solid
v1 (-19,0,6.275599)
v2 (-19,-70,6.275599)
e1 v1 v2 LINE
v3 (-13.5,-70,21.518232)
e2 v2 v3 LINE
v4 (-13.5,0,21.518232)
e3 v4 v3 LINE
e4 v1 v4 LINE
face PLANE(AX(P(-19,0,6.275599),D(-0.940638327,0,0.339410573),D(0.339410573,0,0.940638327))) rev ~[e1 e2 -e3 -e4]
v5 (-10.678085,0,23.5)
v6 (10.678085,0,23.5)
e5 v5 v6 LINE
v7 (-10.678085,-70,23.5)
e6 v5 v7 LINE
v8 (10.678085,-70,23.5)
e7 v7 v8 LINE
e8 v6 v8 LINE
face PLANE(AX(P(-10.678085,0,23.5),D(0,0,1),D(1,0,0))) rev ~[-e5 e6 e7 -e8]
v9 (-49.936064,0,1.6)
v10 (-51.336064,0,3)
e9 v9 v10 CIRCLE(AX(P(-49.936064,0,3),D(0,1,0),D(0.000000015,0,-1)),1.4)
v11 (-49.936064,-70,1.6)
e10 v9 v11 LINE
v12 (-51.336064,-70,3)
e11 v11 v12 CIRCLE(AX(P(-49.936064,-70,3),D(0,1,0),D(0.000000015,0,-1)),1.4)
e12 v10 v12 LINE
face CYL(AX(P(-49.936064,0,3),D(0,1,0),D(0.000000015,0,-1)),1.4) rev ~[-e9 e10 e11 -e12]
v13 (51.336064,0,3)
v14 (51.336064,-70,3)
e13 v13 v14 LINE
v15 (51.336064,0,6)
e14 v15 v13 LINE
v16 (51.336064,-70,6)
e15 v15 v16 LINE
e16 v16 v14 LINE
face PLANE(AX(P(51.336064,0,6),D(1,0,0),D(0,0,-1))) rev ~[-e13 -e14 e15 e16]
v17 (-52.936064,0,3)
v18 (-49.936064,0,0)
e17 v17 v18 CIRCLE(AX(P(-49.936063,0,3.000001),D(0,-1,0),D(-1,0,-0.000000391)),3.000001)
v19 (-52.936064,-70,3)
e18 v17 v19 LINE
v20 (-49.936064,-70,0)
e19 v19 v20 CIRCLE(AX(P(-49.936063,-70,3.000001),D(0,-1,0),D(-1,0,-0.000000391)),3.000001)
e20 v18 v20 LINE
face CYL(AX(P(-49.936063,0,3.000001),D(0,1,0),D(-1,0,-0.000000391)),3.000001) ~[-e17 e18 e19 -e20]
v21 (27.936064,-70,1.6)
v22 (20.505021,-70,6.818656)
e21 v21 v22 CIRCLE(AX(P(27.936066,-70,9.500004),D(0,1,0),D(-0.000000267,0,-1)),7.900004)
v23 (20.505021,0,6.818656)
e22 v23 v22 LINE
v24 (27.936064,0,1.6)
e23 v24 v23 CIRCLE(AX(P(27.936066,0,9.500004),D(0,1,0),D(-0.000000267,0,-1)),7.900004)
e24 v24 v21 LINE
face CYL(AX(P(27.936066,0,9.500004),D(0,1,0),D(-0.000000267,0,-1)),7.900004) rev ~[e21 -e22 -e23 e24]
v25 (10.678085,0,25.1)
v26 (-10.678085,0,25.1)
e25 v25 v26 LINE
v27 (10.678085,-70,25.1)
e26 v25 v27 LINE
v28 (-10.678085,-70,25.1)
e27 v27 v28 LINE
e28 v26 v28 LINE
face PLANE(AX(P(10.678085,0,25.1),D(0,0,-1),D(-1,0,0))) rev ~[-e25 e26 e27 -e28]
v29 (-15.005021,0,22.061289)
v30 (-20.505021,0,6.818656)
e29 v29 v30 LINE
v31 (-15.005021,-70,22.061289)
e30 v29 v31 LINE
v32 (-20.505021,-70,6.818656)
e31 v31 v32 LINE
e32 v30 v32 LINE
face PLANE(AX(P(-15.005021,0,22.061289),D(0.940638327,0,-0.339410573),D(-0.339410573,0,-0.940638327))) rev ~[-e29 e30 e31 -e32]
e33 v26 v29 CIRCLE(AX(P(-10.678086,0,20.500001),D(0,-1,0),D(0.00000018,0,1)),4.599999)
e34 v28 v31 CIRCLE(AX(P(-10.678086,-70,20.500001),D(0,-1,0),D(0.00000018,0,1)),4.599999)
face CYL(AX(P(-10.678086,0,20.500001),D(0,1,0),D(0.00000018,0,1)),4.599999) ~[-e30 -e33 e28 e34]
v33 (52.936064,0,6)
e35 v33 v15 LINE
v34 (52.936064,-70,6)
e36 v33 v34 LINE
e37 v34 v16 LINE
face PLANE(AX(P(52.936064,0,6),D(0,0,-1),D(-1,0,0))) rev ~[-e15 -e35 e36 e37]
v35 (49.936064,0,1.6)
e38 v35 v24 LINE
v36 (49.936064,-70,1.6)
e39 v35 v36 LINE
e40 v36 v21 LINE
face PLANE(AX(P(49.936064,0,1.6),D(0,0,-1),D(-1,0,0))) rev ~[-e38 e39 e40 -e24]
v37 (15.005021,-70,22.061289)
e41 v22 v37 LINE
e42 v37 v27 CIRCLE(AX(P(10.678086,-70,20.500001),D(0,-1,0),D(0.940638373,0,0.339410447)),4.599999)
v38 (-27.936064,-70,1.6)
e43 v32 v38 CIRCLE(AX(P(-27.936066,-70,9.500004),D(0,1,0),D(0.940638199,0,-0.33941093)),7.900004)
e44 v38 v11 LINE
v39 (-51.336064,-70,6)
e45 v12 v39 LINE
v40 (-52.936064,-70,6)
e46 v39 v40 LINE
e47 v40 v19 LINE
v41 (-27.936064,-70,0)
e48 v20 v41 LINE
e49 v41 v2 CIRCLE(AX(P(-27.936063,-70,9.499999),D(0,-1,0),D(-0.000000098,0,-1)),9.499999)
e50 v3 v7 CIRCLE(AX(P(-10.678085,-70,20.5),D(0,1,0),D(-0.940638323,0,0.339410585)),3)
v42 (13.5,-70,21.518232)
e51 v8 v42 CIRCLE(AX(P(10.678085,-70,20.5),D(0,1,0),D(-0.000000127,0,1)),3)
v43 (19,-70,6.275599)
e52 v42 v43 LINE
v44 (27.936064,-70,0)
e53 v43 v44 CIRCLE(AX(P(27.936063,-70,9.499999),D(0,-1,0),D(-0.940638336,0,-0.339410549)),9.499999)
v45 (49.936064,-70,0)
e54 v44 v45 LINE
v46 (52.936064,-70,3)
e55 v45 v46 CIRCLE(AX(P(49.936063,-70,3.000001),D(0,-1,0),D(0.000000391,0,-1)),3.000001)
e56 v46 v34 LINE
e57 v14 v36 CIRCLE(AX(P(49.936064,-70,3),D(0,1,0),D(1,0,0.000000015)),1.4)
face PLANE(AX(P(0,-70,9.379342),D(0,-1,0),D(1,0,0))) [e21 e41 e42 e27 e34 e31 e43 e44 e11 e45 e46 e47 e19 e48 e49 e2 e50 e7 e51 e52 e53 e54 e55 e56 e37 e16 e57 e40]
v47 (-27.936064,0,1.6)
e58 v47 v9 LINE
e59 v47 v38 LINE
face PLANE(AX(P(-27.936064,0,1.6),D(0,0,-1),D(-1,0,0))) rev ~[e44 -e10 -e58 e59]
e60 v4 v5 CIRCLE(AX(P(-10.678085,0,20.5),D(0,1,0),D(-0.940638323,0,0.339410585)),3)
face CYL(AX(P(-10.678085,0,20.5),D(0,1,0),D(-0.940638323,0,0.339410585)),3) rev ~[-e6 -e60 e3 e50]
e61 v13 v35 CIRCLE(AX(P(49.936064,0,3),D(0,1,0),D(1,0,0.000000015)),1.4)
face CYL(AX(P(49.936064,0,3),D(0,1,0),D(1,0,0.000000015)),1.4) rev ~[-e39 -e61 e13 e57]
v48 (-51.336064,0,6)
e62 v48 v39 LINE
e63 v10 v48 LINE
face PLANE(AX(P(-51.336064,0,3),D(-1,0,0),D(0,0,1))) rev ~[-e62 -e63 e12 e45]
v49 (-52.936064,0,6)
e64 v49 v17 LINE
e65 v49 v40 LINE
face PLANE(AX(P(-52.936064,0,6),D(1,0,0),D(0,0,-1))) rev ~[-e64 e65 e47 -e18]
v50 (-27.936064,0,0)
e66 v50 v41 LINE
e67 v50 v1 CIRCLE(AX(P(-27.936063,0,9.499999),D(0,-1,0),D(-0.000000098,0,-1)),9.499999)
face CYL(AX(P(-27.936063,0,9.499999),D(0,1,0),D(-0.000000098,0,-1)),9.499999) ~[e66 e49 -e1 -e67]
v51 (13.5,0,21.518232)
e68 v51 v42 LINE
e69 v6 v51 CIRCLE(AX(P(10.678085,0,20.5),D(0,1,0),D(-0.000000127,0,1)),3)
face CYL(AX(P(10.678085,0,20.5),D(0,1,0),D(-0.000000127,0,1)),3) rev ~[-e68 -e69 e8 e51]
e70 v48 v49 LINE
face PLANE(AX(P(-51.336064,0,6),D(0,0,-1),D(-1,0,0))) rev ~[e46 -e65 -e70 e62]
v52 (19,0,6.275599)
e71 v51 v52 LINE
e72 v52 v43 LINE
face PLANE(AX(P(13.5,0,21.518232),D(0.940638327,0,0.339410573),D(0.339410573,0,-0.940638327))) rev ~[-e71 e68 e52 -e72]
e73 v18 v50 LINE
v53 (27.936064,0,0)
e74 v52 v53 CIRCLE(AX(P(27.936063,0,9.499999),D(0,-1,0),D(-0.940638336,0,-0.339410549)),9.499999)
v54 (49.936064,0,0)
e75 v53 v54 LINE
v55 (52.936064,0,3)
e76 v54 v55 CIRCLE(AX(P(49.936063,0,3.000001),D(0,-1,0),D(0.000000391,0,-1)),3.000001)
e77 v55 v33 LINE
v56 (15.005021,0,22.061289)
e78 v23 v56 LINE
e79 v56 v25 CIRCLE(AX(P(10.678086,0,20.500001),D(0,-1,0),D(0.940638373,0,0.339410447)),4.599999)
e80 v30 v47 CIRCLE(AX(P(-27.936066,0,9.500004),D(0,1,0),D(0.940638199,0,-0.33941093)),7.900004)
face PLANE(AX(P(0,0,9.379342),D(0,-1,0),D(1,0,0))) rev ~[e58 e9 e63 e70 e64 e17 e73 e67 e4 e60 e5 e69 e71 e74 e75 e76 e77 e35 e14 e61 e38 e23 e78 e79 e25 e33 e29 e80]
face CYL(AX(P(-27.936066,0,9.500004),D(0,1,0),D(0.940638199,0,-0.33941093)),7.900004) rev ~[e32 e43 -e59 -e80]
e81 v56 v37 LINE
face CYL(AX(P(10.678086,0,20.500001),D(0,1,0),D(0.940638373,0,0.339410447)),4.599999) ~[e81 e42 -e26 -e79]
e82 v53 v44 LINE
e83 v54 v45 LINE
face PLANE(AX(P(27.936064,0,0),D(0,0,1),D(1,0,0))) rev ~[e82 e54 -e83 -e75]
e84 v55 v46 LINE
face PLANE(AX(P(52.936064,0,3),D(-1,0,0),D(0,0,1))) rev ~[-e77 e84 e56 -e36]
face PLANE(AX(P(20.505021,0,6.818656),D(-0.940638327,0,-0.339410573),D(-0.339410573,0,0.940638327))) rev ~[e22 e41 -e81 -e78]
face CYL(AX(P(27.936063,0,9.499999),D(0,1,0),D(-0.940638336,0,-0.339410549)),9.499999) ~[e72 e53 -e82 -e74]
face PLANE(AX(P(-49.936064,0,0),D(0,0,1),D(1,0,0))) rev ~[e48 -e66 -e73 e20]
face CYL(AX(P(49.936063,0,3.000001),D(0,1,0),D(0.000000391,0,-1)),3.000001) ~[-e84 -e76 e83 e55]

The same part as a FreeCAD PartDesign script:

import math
import FreeCAD as App
import Part
import Sketcher
from FreeCAD import Vector

doc = App.newDocument("Part")
body = doc.addObject("PartDesign::Body", "Body")

# Sketch on XZ plane
sketch1 = doc.addObject("Sketcher::SketchObject", "Sketch")
body.addObject(sketch1)
sketch1.AttachmentSupport = (doc.XZ_Plane, [""])
sketch1.MapMode = "FlatFace"
sketch1.addGeometry(Part.LineSegment(Vector(-10.678085, 23.5, 0), Vector(10.678085, 23.5, 0)), False)
sketch1.addGeometry(Part.ArcOfCircle(Part.Circle(Vector(10.678085, 20.5, 0), Vector(0, 0, 1), 3), math.radians(19.840968), math.radians(90.000007)), False)
sketch1.addGeometry(Part.LineSegment(Vector(13.5, 21.518232, 0), Vector(19, 6.275599, 0)), False)
sketch1.addGeometry(Part.ArcOfCircle(Part.Circle(Vector(27.936063, 9.499999, 0), Vector(0, 0, 1), 9.499999), math.radians(-160.159034), math.radians(-89.999994)), False)
sketch1.addGeometry(Part.LineSegment(Vector(27.936064, 0, 0), Vector(49.936064, 0, 0)), False)
sketch1.addGeometry(Part.ArcOfCircle(Part.Circle(Vector(49.936063, 3.000001, 0), Vector(0, 0, 1), 3.000001), math.radians(-89.999978), math.radians(-0.000022)), False)
sketch1.addGeometry(Part.LineSegment(Vector(52.936064, 3, 0), Vector(52.936064, 6, 0)), False)
sketch1.addGeometry(Part.LineSegment(Vector(52.936064, 6, 0), Vector(51.336064, 6, 0)), False)
sketch1.addGeometry(Part.LineSegment(Vector(51.336064, 6, 0), Vector(51.336064, 3, 0)), False)
sketch1.addGeometry(Part.ArcOfCircle(Part.Circle(Vector(49.936064, 3, 0), Vector(0, 0, 1), 1.4), math.radians(-90.000001), math.radians(0.000001)), False)
sketch1.addGeometry(Part.LineSegment(Vector(49.936064, 1.6, 0), Vector(27.936064, 1.6, 0)), False)
sketch1.addGeometry(Part.ArcOfCircle(Part.Circle(Vector(27.936066, 9.500004, 0), Vector(0, 0, 1), 7.900004), math.radians(-160.159011), math.radians(-90.000015)), False)
sketch1.addGeometry(Part.LineSegment(Vector(20.505021, 6.818656, 0), Vector(15.005021, 22.061289, 0)), False)
sketch1.addGeometry(Part.ArcOfCircle(Part.Circle(Vector(10.678086, 20.500001, 0), Vector(0, 0, 1), 4.599999), math.radians(19.840959), math.radians(90.00001)), False)
sketch1.addGeometry(Part.LineSegment(Vector(10.678085, 25.1, 0), Vector(-10.678085, 25.1, 0)), False)
sketch1.addGeometry(Part.ArcOfCircle(Part.Circle(Vector(-10.678086, 20.500001, 0), Vector(0, 0, 1), 4.599999), math.radians(89.99999), math.radians(160.159041)), False)
sketch1.addGeometry(Part.LineSegment(Vector(-15.005021, 22.061289, 0), Vector(-20.505021, 6.818656, 0)), False)
sketch1.addGeometry(Part.ArcOfCircle(Part.Circle(Vector(-27.936066, 9.500004, 0), Vector(0, 0, 1), 7.900004), math.radians(-89.999985), math.radians(-19.840989)), False)
sketch1.addGeometry(Part.LineSegment(Vector(-27.936064, 1.6, 0), Vector(-49.936064, 1.6, 0)), False)
sketch1.addGeometry(Part.ArcOfCircle(Part.Circle(Vector(-49.936064, 3, 0), Vector(0, 0, 1), 1.4), math.radians(179.999999), math.radians(270.000001)), False)
sketch1.addGeometry(Part.LineSegment(Vector(-51.336064, 3, 0), Vector(-51.336064, 6, 0)), False)
sketch1.addGeometry(Part.LineSegment(Vector(-51.336064, 6, 0), Vector(-52.936064, 6, 0)), False)
sketch1.addGeometry(Part.LineSegment(Vector(-52.936064, 6, 0), Vector(-52.936064, 3, 0)), False)
sketch1.addGeometry(Part.ArcOfCircle(Part.Circle(Vector(-49.936063, 3.000001, 0), Vector(0, 0, 1), 3.000001), math.radians(-179.999978), math.radians(-90.000022)), False)
sketch1.addGeometry(Part.LineSegment(Vector(-49.936064, 0, 0), Vector(-27.936064, 0, 0)), False)
sketch1.addGeometry(Part.ArcOfCircle(Part.Circle(Vector(-27.936063, 9.499999, 0), Vector(0, 0, 1), 9.499999), math.radians(-90.000006), math.radians(-19.840966)), False)
sketch1.addGeometry(Part.LineSegment(Vector(-19, 6.275599, 0), Vector(-13.5, 21.518232, 0)), False)
sketch1.addGeometry(Part.ArcOfCircle(Part.Circle(Vector(-10.678085, 20.5, 0), Vector(0, 0, 1), 3), math.radians(89.999993), math.radians(160.159032)), False)
sketch1.addConstraint(Sketcher.Constraint("Tangent", 0, 2, 1, 2))
sketch1.addConstraint(Sketcher.Constraint("Tangent", 1, 1, 2, 1))
sketch1.addConstraint(Sketcher.Constraint("Tangent", 2, 2, 3, 1))
sketch1.addConstraint(Sketcher.Constraint("Tangent", 3, 2, 4, 1))
sketch1.addConstraint(Sketcher.Constraint("Tangent", 4, 2, 5, 1))
sketch1.addConstraint(Sketcher.Constraint("Tangent", 5, 2, 6, 1))
sketch1.addConstraint(Sketcher.Constraint("Coincident", 6, 2, 7, 1))
sketch1.addConstraint(Sketcher.Constraint("Coincident", 7, 2, 8, 1))
sketch1.addConstraint(Sketcher.Constraint("Tangent", 8, 2, 9, 2))
sketch1.addConstraint(Sketcher.Constraint("Tangent", 9, 1, 10, 1))
sketch1.addConstraint(Sketcher.Constraint("Tangent", 10, 2, 11, 2))
sketch1.addConstraint(Sketcher.Constraint("Tangent", 11, 1, 12, 1))
sketch1.addConstraint(Sketcher.Constraint("Tangent", 12, 2, 13, 1))
sketch1.addConstraint(Sketcher.Constraint("Tangent", 13, 2, 14, 1))
sketch1.addConstraint(Sketcher.Constraint("Tangent", 14, 2, 15, 1))
sketch1.addConstraint(Sketcher.Constraint("Tangent", 15, 2, 16, 1))
sketch1.addConstraint(Sketcher.Constraint("Tangent", 16, 2, 17, 2))
sketch1.addConstraint(Sketcher.Constraint("Tangent", 17, 1, 18, 1))
sketch1.addConstraint(Sketcher.Constraint("Tangent", 18, 2, 19, 2))
sketch1.addConstraint(Sketcher.Constraint("Tangent", 19, 1, 20, 1))
sketch1.addConstraint(Sketcher.Constraint("Coincident", 20, 2, 21, 1))
sketch1.addConstraint(Sketcher.Constraint("Coincident", 21, 2, 22, 1))
sketch1.addConstraint(Sketcher.Constraint("Tangent", 22, 2, 23, 1))
sketch1.addConstraint(Sketcher.Constraint("Tangent", 23, 2, 24, 1))
sketch1.addConstraint(Sketcher.Constraint("Tangent", 24, 2, 25, 1))
sketch1.addConstraint(Sketcher.Constraint("Tangent", 25, 2, 26, 1))
sketch1.addConstraint(Sketcher.Constraint("Tangent", 26, 2, 27, 2))
sketch1.addConstraint(Sketcher.Constraint("Tangent", 27, 1, 0, 1))
sketch1.addConstraint(Sketcher.Constraint("Horizontal", 0))
sketch1.addConstraint(Sketcher.Constraint("Horizontal", 4))
sketch1.addConstraint(Sketcher.Constraint("Vertical", 6))
sketch1.addConstraint(Sketcher.Constraint("Horizontal", 7))
sketch1.addConstraint(Sketcher.Constraint("Vertical", 8))
sketch1.addConstraint(Sketcher.Constraint("Horizontal", 10))
sketch1.addConstraint(Sketcher.Constraint("Horizontal", 14))
sketch1.addConstraint(Sketcher.Constraint("Horizontal", 18))
sketch1.addConstraint(Sketcher.Constraint("Vertical", 20))
sketch1.addConstraint(Sketcher.Constraint("Horizontal", 21))
sketch1.addConstraint(Sketcher.Constraint("Vertical", 22))
sketch1.addConstraint(Sketcher.Constraint("Horizontal", 24))
sketch1.addConstraint(Sketcher.Constraint("Coincident", 9, 3, 5, 3))
sketch1.addConstraint(Sketcher.Constraint("Coincident", 11, 3, 3, 3))
sketch1.addConstraint(Sketcher.Constraint("Coincident", 13, 3, 1, 3))
sketch1.addConstraint(Sketcher.Constraint("Coincident", 23, 3, 19, 3))
sketch1.addConstraint(Sketcher.Constraint("Coincident", 25, 3, 17, 3))
sketch1.addConstraint(Sketcher.Constraint("Coincident", 27, 3, 15, 3))
sketch1.addConstraint(Sketcher.Constraint("Equal", 1, 5))
sketch1.addConstraint(Sketcher.Constraint("Equal", 13, 15))
sketch1.addConstraint(Sketcher.Constraint("Equal", 11, 17))
sketch1.addConstraint(Sketcher.Constraint("Equal", 9, 19))
sketch1.addConstraint(Sketcher.Constraint("Equal", 5, 23))
sketch1.addConstraint(Sketcher.Constraint("Symmetric", 4, 2, 23, 2, -1, 1))
sketch1.addConstraint(Sketcher.Constraint("Symmetric", 3, 3, 17, 3, -2))
sketch1.addConstraint(Sketcher.Constraint("Parallel", 2, 12))
sketch1.addConstraint(Sketcher.Constraint("Horizontal", 12, 2, 15, 2))
sketch1.addConstraint(Sketcher.Constraint("Horizontal", 7, 2, 20, 2))
sketch1.addConstraint(Sketcher.Constraint("Radius", 1, 3.0))
sketch1.addConstraint(Sketcher.Constraint("Radius", 3, 9.499999))
sketch1.addConstraint(Sketcher.Constraint("Radius", 9, 1.4))
sketch1.addConstraint(Sketcher.Constraint("DistanceX", 4, 1, 4, 2, 22.0))
sketch1.addConstraint(Sketcher.Constraint("DistanceY", 6, 1, 6, 2, 3.0))
sketch1.addConstraint(Sketcher.Constraint("DistanceX", -1, 1, 2, 2, 19.0))
sketch1.addConstraint(Sketcher.Constraint("DistanceY", 3, 3, 1, 3, 11.000002))
sketch1.addConstraint(Sketcher.Constraint("DistanceX", -1, 1, 1, 1, 13.5))
pad1 = doc.addObject("PartDesign::Pad", "Pad")
body.addObject(pad1)
pad1.Profile = sketch1
pad1.Length = 70

doc.recompute()
